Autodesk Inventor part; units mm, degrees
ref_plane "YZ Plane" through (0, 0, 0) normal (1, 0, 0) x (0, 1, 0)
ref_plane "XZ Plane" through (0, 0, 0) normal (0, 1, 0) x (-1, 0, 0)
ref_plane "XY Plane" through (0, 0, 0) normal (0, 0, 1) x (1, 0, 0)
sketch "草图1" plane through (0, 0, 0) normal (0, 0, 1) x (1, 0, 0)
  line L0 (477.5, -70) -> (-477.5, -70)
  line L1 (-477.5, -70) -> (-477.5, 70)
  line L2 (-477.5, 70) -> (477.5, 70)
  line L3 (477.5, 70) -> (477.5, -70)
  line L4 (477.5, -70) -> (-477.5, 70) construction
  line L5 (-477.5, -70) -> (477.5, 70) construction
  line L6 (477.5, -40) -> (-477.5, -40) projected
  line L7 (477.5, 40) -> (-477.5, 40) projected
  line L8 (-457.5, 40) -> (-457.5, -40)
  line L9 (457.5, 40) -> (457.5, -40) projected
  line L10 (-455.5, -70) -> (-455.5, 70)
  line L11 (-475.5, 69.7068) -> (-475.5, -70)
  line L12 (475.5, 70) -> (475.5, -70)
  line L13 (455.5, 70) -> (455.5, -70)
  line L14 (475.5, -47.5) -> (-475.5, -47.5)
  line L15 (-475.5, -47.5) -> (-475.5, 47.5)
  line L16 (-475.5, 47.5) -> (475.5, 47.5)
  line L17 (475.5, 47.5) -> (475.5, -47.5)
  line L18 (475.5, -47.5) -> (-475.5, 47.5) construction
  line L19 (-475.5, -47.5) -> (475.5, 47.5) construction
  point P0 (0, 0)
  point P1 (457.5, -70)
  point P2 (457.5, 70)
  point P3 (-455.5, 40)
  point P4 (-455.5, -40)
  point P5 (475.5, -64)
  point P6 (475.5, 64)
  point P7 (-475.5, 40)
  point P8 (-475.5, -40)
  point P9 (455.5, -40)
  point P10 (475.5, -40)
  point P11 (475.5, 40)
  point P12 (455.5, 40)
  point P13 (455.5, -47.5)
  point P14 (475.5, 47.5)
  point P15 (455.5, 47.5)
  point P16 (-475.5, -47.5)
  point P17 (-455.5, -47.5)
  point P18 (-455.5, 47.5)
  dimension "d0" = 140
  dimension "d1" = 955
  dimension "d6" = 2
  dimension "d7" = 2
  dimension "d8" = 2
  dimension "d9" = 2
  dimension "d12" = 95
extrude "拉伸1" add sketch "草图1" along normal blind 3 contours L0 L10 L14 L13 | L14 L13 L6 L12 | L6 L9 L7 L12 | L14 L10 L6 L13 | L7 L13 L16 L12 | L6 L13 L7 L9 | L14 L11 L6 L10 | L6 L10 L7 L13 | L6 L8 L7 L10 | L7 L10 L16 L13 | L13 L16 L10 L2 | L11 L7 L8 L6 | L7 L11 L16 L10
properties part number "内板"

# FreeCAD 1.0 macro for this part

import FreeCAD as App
import Part
import Sketcher
from FreeCAD import Vector


def add_polygon(sketch, points):
    """Adds a closed chain of lines whose ends are joined by coincident constraints."""
    first, n = sketch.GeometryCount, len(points)
    for a, b in zip(points, points[1:] + points[:1]):
        sketch.addGeometry(Part.LineSegment(App.Vector(*a, 0), App.Vector(*b, 0)), False)
    for i in range(n):
        sketch.addConstraint(Sketcher.Constraint("Coincident", first + i, 2, first + (i + 1) % n, 1))

doc = App.newDocument("Part")
body = doc.addObject("PartDesign::Body", "Body")

# Sketch on XY plane
sketch1 = body.newObject("Sketcher::SketchObject", "Sketch")
sketch1.AttachmentSupport = (doc.getObject("XY_Plane"), [""])
sketch1.MapMode = "FlatFace"
add_polygon(sketch1, [(-455.5, -70), (455.5, -70), (455.5, -47.5), (475.5, -47.5), (475.5, 47.5), (455.5, 47.5), (455.5, 70), (-455.5, 70), (-455.5, 47.5), (-475.5, 47.5), (-475.5, -47.5), (-455.5, -47.5)])  # lines 0-11
sketch1.addConstraint([
    Sketcher.Constraint("Horizontal", 0),
    Sketcher.Constraint("Vertical", 1),
    Sketcher.Constraint("Horizontal", 2),
    Sketcher.Constraint("Vertical", 3),
    Sketcher.Constraint("Horizontal", 4),
    Sketcher.Constraint("Vertical", 5),
    Sketcher.Constraint("Horizontal", 6),
    Sketcher.Constraint("Vertical", 7),
    Sketcher.Constraint("Horizontal", 8),
    Sketcher.Constraint("Vertical", 9),
    Sketcher.Constraint("Horizontal", 10),
    Sketcher.Constraint("Vertical", 11),
    Sketcher.Constraint("Symmetric", 0, 2, 6, 2, -1, 1),
    Sketcher.Constraint("Symmetric", 2, 2, 8, 2, -1, 1),
    Sketcher.Constraint("Symmetric", 4, 2, 10, 2, -1, 1),
    Sketcher.Constraint("Symmetric", 4, 2, 7, 2, -2),
    Sketcher.Constraint("DistanceY", 3, 1, 3, 2, 95.0),
    Sketcher.Constraint("DistanceY", 0, 2, 5, 2, 140.0),
    Sketcher.Constraint("DistanceX", 0, 1, 0, 2, 911.0),
    Sketcher.Constraint("DistanceX", 2, 1, 2, 2, 20.0),
])
pad1 = body.newObject("PartDesign::Pad", "Pad")
pad1.Profile = sketch1
pad1.Length = 3

doc.recompute()
